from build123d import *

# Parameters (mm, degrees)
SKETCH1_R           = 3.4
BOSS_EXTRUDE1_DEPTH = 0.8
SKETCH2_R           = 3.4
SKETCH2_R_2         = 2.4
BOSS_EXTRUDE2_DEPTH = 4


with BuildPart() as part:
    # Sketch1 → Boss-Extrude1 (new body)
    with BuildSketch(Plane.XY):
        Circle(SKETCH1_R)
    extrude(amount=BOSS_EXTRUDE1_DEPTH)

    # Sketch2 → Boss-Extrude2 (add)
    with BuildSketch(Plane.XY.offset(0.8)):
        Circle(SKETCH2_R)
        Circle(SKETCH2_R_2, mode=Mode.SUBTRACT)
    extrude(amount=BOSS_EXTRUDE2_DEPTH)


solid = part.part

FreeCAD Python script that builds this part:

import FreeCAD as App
import Part
import Sketcher
from FreeCAD import Vector
Q = App.Units.Quantity

doc = App.newDocument("Part")
params = doc.addObject("Spreadsheet::Sheet", "Params")
for row, (alias, value) in enumerate([
    ("sketch1_diameter", "6.8 mm"),
    ("pad1_length", "0.8 mm"),
    ("sketch2_diameter", "6.8 mm"),
    ("sketch2_diameter2", "4.8 mm"),
    ("pad2_length", "4 mm"),
], start=1):
    params.set(f"A{row}", alias)
    params.set(f"B{row}", "=" + value)
    params.setAlias(f"B{row}", alias)

body = doc.addObject("PartDesign::Body", "Body")

# Sketch on XY plane
sketch1 = doc.addObject("Sketcher::SketchObject", "Sketch")
body.addObject(sketch1)
sketch1.AttachmentSupport = (doc.XY_Plane, [""])
sketch1.MapMode = "FlatFace"
sketch1.addGeometry(Part.Circle(Vector(0, 0, 0), Vector(0, 0, 1), 3.4), False)
sketch1.addConstraint([
    Sketcher.Constraint("Coincident", 0, 3, -1, 1),
    Sketcher.Constraint("Diameter", 0, Q("6.8 mm")),
])
sketch1.setExpression("Constraints[1]", "Params.sketch1_diameter")
pad1 = doc.addObject("PartDesign::Pad", "Pad")
body.addObject(pad1)
pad1.Profile = sketch1
pad1.setExpression("Length", "Params.pad1_length")

# Sketch on XY plane
sketch2 = doc.addObject("Sketcher::SketchObject", "Sketch001")
body.addObject(sketch2)
sketch2.AttachmentSupport = (doc.XY_Plane, [""])
sketch2.MapMode = "FlatFace"
sketch2.AttachmentOffset = App.Placement(Vector(0, 0, 0.8), App.Rotation())
sketch2.addGeometry([
    Part.Circle(Vector(0, 0, 0), Vector(0, 0, 1), 3.4),
    Part.Circle(Vector(0, 0, 0), Vector(0, 0, 1), 2.4),
], False)
sketch2.addConstraint([
    Sketcher.Constraint("Coincident", 0, 3, -1, 1),
    Sketcher.Constraint("Coincident", 1, 3, -1, 1),
    Sketcher.Constraint("Diameter", 0, Q("6.8 mm")),
    Sketcher.Constraint("Diameter", 1, Q("4.8 mm")),
])
sketch2.setExpression("Constraints[2]", "Params.sketch2_diameter")
sketch2.setExpression("Constraints[3]", "Params.sketch2_diameter2")
pad2 = doc.addObject("PartDesign::Pad", "Pad001")
body.addObject(pad2)
pad2.Profile = sketch2
pad2.setExpression("Length", "Params.pad2_length")

doc.recompute()
